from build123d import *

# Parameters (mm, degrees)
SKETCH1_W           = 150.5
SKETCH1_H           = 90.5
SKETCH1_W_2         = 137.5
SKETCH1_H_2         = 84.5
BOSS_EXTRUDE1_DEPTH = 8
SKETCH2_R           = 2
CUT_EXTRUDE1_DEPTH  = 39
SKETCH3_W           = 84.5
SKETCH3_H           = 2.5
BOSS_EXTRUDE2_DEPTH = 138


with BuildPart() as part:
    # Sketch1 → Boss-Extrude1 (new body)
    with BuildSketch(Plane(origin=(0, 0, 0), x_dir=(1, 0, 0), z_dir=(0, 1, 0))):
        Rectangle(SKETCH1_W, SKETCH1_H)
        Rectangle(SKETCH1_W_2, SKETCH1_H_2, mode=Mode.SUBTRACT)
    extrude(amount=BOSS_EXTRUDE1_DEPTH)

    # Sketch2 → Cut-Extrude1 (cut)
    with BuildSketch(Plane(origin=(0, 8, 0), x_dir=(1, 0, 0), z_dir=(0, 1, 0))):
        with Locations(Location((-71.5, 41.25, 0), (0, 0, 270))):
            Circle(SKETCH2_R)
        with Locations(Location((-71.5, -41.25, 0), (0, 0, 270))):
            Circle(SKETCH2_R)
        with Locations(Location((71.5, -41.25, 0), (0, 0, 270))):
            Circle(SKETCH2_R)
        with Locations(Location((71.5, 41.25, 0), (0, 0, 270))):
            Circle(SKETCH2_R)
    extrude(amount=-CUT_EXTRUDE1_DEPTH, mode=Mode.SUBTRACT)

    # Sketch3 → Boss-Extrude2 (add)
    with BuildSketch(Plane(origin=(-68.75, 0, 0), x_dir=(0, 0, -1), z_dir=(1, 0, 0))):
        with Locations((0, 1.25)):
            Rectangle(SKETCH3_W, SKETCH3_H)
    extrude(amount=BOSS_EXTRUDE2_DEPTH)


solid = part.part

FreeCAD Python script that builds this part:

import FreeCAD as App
import Part
import Sketcher

V = App.Vector


def add_polygon(sketch, points):
    """Adds a closed chain of lines whose ends are joined by coincident constraints."""
    first, n = sketch.GeometryCount, len(points)
    for a, b in zip(points, points[1:] + points[:1]):
        sketch.addGeometry(Part.LineSegment(App.Vector(*a, 0), App.Vector(*b, 0)), False)
    for i in range(n):
        sketch.addConstraint(Sketcher.Constraint("Coincident", first + i, 2, first + (i + 1) % n, 1))

doc = App.newDocument("Part")
body = doc.addObject("PartDesign::Body", "Body")

sketch1 = body.newObject("Sketcher::SketchObject", "Sketch")
sketch1.AttachmentSupport = (doc.getObject("XZ_Plane"), [""])
sketch1.MapMode = "FlatFace"
add_polygon(sketch1, [(-75, -45), (-75, 45), (75, 45), (75, -45)])
add_polygon(sketch1, [(69, 42), (-69, 42), (-69, -42), (69, -42)])
sketch1.addConstraint(Sketcher.Constraint("Vertical", 0))
sketch1.addConstraint(Sketcher.Constraint("Horizontal", 1))
sketch1.addConstraint(Sketcher.Constraint("Vertical", 2))
sketch1.addConstraint(Sketcher.Constraint("Horizontal", 3))
sketch1.addConstraint(Sketcher.Constraint("Horizontal", 4))
sketch1.addConstraint(Sketcher.Constraint("Vertical", 5))
sketch1.addConstraint(Sketcher.Constraint("Horizontal", 6))
sketch1.addConstraint(Sketcher.Constraint("Vertical", 7))
sketch1.addConstraint(Sketcher.Constraint("Symmetric", 0, 2, 2, 2, -1, 1))
sketch1.addConstraint(Sketcher.Constraint("Symmetric", 4, 2, 6, 2, -1, 1))
sketch1.addConstraint(Sketcher.Constraint("DistanceX", 1, 1, 1, 2, 150.5))
sketch1.addConstraint(Sketcher.Constraint("DistanceX", 4, 2, 4, 1, 137.5))
sketch1.addConstraint(Sketcher.Constraint("DistanceY", 0, 1, 0, 2, 90.5))
sketch1.addConstraint(Sketcher.Constraint("DistanceY", 5, 2, 5, 1, 84.5))
pad1 = body.newObject("PartDesign::Pad", "Pad")
pad1.Profile = sketch1
pad1.Length = 8
pad1.Reversed = True

sketch2 = body.newObject("Sketcher::SketchObject", "Sketch001")
sketch2.AttachmentSupport = (doc.getObject("XZ_Plane"), [""])
sketch2.MapMode = "FlatFace"
sketch2.AttachmentOffset = App.Placement(V(0, 0, -8), App.Rotation())
sketch2.addGeometry(Part.Circle(V(-71.5, -41.2, 0), V(0, 0, 1), 2), False)
sketch2.addGeometry(Part.Circle(V(-71.5, 41.2, 0), V(0, 0, 1), 2), False)
sketch2.addGeometry(Part.Circle(V(71.5, 41.2, 0), V(0, 0, 1), 2), False)
sketch2.addGeometry(Part.Circle(V(71.5, -41.2, 0), V(0, 0, 1), 2), False)
sketch2.addConstraint(Sketcher.Constraint("Equal", 0, 1))
sketch2.addConstraint(Sketcher.Constraint("Equal", 1, 2))
sketch2.addConstraint(Sketcher.Constraint("Equal", 2, 3))
sketch2.addConstraint(Sketcher.Constraint("Symmetric", 0, 3, 2, 3, -1, 1))
sketch2.addConstraint(Sketcher.Constraint("Symmetric", 1, 3, 3, 3, -1, 1))
sketch2.addConstraint(Sketcher.Constraint("Symmetric", 1, 3, 2, 3, -2))
sketch2.addConstraint(Sketcher.Constraint("Diameter", 0, 4.0))
sketch2.addConstraint(Sketcher.Constraint("DistanceX", 1, 3, 2, 3, 143.0))
sketch2.addConstraint(Sketcher.Constraint("DistanceY", 0, 3, 1, 3, 82.5))
pocket1 = body.newObject("PartDesign::Pocket", "Pocket")
pocket1.Profile = sketch2
pocket1.Length = 39
pocket1.Reversed = True

sketch3 = body.newObject("Sketcher::SketchObject", "Sketch002")
sketch3.AttachmentSupport = (doc.getObject("YZ_Plane"), [""])
sketch3.MapMode = "FlatFace"
sketch3.AttachmentOffset = App.Placement(V(0, 0, -68.75), App.Rotation())
add_polygon(sketch3, [(2.5, 42.2), (0, 42.2), (0, -42.2), (2.5, -42.2)])
sketch3.addConstraint(Sketcher.Constraint("Horizontal", 0))
sketch3.addConstraint(Sketcher.Constraint("Vertical", 1))
sketch3.addConstraint(Sketcher.Constraint("Horizontal", 2))
sketch3.addConstraint(Sketcher.Constraint("Vertical", 3))
sketch3.addConstraint(Sketcher.Constraint("Symmetric", 0, 2, 1, 2, -1, 1))
sketch3.addConstraint(Sketcher.Constraint("DistanceX", 0, 2, 0, 1, 2.5))
sketch3.addConstraint(Sketcher.Constraint("DistanceY", 1, 2, 1, 1, 84.5))
pad2 = body.newObject("PartDesign::Pad", "Pad001")
pad2.Profile = sketch3
pad2.Length = 138

doc.recompute()
